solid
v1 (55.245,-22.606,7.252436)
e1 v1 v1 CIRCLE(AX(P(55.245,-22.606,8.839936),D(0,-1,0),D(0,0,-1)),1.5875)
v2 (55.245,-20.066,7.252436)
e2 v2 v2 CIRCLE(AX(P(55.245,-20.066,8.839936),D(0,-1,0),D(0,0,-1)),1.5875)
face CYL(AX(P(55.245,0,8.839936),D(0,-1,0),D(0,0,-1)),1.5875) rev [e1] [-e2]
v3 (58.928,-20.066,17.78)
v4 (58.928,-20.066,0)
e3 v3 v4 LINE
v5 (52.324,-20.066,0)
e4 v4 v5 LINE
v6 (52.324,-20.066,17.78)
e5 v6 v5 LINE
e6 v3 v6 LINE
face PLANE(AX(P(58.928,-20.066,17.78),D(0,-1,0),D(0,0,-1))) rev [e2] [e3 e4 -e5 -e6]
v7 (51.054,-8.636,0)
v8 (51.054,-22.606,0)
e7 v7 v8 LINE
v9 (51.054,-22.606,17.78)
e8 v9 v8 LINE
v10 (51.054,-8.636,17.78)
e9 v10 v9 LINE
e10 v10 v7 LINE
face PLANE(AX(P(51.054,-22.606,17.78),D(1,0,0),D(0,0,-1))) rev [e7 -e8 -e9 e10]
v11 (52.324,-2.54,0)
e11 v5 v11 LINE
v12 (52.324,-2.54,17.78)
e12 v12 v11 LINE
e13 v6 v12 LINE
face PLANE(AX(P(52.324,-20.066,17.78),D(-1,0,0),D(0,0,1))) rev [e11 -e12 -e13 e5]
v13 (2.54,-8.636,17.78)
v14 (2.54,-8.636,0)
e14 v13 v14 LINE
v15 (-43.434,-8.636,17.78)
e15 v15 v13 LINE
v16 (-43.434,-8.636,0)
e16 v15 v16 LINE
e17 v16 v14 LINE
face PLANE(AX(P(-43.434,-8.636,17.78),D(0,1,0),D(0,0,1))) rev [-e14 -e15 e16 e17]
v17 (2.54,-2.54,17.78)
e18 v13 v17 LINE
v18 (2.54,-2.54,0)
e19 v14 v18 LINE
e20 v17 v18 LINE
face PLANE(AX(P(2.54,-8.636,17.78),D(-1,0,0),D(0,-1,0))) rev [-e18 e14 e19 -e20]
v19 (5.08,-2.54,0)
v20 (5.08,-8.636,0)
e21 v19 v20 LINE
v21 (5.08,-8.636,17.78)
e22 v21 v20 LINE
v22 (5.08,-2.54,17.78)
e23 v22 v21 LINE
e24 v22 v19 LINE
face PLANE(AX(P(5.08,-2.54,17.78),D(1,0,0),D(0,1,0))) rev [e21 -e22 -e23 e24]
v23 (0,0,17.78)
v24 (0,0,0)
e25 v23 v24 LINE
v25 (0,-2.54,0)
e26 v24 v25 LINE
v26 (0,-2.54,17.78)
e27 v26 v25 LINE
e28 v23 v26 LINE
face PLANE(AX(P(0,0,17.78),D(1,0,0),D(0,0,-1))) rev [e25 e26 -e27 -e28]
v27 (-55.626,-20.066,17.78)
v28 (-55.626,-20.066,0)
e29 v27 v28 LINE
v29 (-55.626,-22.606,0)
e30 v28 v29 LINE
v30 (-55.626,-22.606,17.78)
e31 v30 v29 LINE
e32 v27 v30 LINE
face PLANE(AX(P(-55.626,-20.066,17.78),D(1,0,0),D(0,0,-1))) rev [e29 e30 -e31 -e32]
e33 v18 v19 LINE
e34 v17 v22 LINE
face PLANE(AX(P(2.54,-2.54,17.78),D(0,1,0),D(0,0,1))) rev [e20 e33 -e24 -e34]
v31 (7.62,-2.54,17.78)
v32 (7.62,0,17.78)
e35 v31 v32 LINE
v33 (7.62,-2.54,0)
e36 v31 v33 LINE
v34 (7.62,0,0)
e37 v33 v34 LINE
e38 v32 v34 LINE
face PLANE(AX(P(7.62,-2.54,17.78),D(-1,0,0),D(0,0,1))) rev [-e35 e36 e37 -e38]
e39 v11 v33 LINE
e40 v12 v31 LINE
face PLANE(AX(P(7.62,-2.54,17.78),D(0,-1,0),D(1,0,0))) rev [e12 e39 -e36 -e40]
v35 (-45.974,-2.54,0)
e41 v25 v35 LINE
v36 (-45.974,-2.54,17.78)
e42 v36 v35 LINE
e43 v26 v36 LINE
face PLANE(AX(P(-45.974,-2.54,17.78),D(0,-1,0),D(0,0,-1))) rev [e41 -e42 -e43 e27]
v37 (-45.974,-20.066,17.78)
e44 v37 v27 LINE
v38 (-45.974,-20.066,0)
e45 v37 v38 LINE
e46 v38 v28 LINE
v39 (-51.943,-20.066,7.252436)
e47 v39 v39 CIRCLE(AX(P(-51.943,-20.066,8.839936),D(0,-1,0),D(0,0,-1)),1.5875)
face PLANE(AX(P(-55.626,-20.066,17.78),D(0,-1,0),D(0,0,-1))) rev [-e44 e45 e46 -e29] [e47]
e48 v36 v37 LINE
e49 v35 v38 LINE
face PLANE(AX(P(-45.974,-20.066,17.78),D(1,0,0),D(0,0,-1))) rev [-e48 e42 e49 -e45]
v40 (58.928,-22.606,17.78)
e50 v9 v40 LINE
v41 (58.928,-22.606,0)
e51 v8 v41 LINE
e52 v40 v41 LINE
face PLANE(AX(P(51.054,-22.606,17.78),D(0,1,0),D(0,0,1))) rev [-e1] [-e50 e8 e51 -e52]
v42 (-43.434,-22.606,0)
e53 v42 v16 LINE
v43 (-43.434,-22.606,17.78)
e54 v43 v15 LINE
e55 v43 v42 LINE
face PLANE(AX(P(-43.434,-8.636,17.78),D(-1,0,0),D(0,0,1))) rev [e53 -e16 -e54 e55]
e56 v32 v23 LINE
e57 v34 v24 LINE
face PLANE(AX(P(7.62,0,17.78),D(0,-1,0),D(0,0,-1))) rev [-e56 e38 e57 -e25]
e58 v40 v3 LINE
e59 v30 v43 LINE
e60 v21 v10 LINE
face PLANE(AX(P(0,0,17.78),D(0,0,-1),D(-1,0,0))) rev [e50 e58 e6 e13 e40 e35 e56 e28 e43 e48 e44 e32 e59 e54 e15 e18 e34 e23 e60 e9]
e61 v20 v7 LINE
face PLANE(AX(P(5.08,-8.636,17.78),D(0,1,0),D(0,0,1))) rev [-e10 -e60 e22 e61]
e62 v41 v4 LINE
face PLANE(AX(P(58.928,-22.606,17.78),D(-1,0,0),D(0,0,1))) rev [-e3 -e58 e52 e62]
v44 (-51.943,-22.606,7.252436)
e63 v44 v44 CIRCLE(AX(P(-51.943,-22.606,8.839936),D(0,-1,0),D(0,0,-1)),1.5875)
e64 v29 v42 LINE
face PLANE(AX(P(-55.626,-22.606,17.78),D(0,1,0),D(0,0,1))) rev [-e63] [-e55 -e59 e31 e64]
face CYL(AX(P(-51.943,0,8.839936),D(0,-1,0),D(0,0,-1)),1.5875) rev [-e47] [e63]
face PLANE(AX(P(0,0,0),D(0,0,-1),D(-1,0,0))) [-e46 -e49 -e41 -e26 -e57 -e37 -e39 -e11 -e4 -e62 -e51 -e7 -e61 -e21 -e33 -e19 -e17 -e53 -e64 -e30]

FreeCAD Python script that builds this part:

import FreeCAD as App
import Part
import Sketcher
from FreeCAD import Vector
Q = App.Units.Quantity


def add_polygon(sketch, points):
    """Adds a closed chain of lines whose ends are joined by coincident constraints."""
    first, n = sketch.GeometryCount, len(points)
    for a, b in zip(points, points[1:] + points[:1]):
        sketch.addGeometry(Part.LineSegment(App.Vector(*a, 0), App.Vector(*b, 0)), False)
    for i in range(n):
        sketch.addConstraint(Sketcher.Constraint("Coincident", first + i, 2, first + (i + 1) % n, 1))

doc = App.newDocument("Part")
body = doc.addObject("PartDesign::Body", "Body")

sketch1 = body.newObject("Sketcher::SketchObject", "Sketch")
sketch1.AttachmentSupport = (doc.getObject("XY_Plane"), [""])
sketch1.MapMode = "FlatFace"
add_polygon(sketch1, [(2.5, -2.5), (5.1, -2.5), (5.1, -8.6), (51.1, -8.6), (51.1, -22.6), (58.9, -22.6), (58.9, -20.1), (52.3, -20.1), (52.3, -2.5), (7.6, -2.5), (7.6, 0), (0, 0), (0, -2.5), (-46, -2.5), (-46, -20.1), (-55.6, -20.1), (-55.6, -22.6), (-43.4, -22.6), (-43.4, -8.6), (2.5, -8.6)])
sketch1.addConstraint(Sketcher.Constraint("Horizontal", 0))
sketch1.addConstraint(Sketcher.Constraint("Vertical", 1))
sketch1.addConstraint(Sketcher.Constraint("Horizontal", 2))
sketch1.addConstraint(Sketcher.Constraint("Vertical", 3))
sketch1.addConstraint(Sketcher.Constraint("Horizontal", 4))
sketch1.addConstraint(Sketcher.Constraint("Vertical", 5))
sketch1.addConstraint(Sketcher.Constraint("Horizontal", 6))
sketch1.addConstraint(Sketcher.Constraint("Vertical", 7))
sketch1.addConstraint(Sketcher.Constraint("Horizontal", 8))
sketch1.addConstraint(Sketcher.Constraint("Vertical", 9))
sketch1.addConstraint(Sketcher.Constraint("Horizontal", 10))
sketch1.addConstraint(Sketcher.Constraint("Vertical", 11))
sketch1.addConstraint(Sketcher.Constraint("Horizontal", 12))
sketch1.addConstraint(Sketcher.Constraint("Vertical", 13))
sketch1.addConstraint(Sketcher.Constraint("Horizontal", 14))
sketch1.addConstraint(Sketcher.Constraint("Vertical", 15))
sketch1.addConstraint(Sketcher.Constraint("Horizontal", 16))
sketch1.addConstraint(Sketcher.Constraint("Vertical", 17))
sketch1.addConstraint(Sketcher.Constraint("Horizontal", 18))
sketch1.addConstraint(Sketcher.Constraint("Vertical", 19))
sketch1.addConstraint(Sketcher.Constraint("Coincident", 10, 2, -1, 1))
sketch1.addConstraint(Sketcher.Constraint("Horizontal", 0, 2, 7, 2))
sketch1.addConstraint(Sketcher.Constraint("Horizontal", 8, 2, 11, 2))
sketch1.addConstraint(Sketcher.Constraint("Horizontal", 6, 2, 13, 2))
sketch1.addConstraint(Sketcher.Constraint("Horizontal", 4, 2, 15, 2))
sketch1.addConstraint(Sketcher.Constraint("Horizontal", 2, 2, 17, 2))
sketch1.addConstraint(Sketcher.Constraint("Equal", 2, 12))
sketch1.addConstraint(Sketcher.Constraint("Equal", 12, 18))
sketch1.addConstraint(Sketcher.Constraint("Equal", 0, 5))
sketch1.addConstraint(Sketcher.Constraint("Equal", 5, 9))
sketch1.addConstraint(Sketcher.Constraint("DistanceX", 0, 1, 0, 2, Q("0.1 in")))
sketch1.addConstraint(Sketcher.Constraint("DistanceX", 10, 2, 10, 1, Q("0.3 in")))
sketch1.addConstraint(Sketcher.Constraint("DistanceX", 2, 1, 2, 2, Q("1.81 in")))
sketch1.addConstraint(Sketcher.Constraint("DistanceX", 4, 1, 4, 2, Q("0.31 in")))
sketch1.addConstraint(Sketcher.Constraint("DistanceX", 6, 2, 6, 1, Q("0.26 in")))
sketch1.addConstraint(Sketcher.Constraint("DistanceX", 8, 2, 8, 1, Q("1.76 in")))
sketch1.addConstraint(Sketcher.Constraint("DistanceX", 14, 2, 14, 1, Q("0.38 in")))
sketch1.addConstraint(Sketcher.Constraint("DistanceY", 1, 2, 1, 1, Q("0.24 in")))
sketch1.addConstraint(Sketcher.Constraint("DistanceY", 3, 2, 3, 1, Q("0.55 in")))
pad1 = body.newObject("PartDesign::Pad", "Pad")
pad1.Profile = sketch1
pad1.Length = Q("0.7 in")

sketch2 = body.newObject("Sketcher::SketchObject", "Sketch001")
sketch2.AttachmentSupport = (doc.getObject("XZ_Plane"), [""])
sketch2.MapMode = "FlatFace"
sketch2.AttachmentOffset = App.Placement(Vector(0, 0, 0.89 * 25.4), App.Rotation())
sketch2.addGeometry(Part.Circle(Vector(-51.9, 8.8, 0), Vector(0, 0, 1), 1.6), False)
sketch2.addGeometry(Part.Circle(Vector(55.2, 8.8, 0), Vector(0, 0, 1), 1.6), False)
sketch2.addConstraint(Sketcher.Constraint("Equal", 0, 1))
sketch2.addConstraint(Sketcher.Constraint("Horizontal", 0, 3, 1, 3))
sketch2.addConstraint(Sketcher.Constraint("Diameter", 0, Q("0.125 in")))
sketch2.addConstraint(Sketcher.Constraint("DistanceX", 0, 3, 1, 3, Q("4.22 in")))
sketch2.addConstraint(Sketcher.Constraint("DistanceX", 0, 3, -1, 1, Q("2.045 in")))
sketch2.addConstraint(Sketcher.Constraint("DistanceY", -1, 1, 0, 3, Q("8.839936 mm")))
pocket1 = body.newObject("PartDesign::Pocket", "Pocket")
pocket1.Profile = sketch2
pocket1.Type = "ThroughAll"

doc.recompute()
